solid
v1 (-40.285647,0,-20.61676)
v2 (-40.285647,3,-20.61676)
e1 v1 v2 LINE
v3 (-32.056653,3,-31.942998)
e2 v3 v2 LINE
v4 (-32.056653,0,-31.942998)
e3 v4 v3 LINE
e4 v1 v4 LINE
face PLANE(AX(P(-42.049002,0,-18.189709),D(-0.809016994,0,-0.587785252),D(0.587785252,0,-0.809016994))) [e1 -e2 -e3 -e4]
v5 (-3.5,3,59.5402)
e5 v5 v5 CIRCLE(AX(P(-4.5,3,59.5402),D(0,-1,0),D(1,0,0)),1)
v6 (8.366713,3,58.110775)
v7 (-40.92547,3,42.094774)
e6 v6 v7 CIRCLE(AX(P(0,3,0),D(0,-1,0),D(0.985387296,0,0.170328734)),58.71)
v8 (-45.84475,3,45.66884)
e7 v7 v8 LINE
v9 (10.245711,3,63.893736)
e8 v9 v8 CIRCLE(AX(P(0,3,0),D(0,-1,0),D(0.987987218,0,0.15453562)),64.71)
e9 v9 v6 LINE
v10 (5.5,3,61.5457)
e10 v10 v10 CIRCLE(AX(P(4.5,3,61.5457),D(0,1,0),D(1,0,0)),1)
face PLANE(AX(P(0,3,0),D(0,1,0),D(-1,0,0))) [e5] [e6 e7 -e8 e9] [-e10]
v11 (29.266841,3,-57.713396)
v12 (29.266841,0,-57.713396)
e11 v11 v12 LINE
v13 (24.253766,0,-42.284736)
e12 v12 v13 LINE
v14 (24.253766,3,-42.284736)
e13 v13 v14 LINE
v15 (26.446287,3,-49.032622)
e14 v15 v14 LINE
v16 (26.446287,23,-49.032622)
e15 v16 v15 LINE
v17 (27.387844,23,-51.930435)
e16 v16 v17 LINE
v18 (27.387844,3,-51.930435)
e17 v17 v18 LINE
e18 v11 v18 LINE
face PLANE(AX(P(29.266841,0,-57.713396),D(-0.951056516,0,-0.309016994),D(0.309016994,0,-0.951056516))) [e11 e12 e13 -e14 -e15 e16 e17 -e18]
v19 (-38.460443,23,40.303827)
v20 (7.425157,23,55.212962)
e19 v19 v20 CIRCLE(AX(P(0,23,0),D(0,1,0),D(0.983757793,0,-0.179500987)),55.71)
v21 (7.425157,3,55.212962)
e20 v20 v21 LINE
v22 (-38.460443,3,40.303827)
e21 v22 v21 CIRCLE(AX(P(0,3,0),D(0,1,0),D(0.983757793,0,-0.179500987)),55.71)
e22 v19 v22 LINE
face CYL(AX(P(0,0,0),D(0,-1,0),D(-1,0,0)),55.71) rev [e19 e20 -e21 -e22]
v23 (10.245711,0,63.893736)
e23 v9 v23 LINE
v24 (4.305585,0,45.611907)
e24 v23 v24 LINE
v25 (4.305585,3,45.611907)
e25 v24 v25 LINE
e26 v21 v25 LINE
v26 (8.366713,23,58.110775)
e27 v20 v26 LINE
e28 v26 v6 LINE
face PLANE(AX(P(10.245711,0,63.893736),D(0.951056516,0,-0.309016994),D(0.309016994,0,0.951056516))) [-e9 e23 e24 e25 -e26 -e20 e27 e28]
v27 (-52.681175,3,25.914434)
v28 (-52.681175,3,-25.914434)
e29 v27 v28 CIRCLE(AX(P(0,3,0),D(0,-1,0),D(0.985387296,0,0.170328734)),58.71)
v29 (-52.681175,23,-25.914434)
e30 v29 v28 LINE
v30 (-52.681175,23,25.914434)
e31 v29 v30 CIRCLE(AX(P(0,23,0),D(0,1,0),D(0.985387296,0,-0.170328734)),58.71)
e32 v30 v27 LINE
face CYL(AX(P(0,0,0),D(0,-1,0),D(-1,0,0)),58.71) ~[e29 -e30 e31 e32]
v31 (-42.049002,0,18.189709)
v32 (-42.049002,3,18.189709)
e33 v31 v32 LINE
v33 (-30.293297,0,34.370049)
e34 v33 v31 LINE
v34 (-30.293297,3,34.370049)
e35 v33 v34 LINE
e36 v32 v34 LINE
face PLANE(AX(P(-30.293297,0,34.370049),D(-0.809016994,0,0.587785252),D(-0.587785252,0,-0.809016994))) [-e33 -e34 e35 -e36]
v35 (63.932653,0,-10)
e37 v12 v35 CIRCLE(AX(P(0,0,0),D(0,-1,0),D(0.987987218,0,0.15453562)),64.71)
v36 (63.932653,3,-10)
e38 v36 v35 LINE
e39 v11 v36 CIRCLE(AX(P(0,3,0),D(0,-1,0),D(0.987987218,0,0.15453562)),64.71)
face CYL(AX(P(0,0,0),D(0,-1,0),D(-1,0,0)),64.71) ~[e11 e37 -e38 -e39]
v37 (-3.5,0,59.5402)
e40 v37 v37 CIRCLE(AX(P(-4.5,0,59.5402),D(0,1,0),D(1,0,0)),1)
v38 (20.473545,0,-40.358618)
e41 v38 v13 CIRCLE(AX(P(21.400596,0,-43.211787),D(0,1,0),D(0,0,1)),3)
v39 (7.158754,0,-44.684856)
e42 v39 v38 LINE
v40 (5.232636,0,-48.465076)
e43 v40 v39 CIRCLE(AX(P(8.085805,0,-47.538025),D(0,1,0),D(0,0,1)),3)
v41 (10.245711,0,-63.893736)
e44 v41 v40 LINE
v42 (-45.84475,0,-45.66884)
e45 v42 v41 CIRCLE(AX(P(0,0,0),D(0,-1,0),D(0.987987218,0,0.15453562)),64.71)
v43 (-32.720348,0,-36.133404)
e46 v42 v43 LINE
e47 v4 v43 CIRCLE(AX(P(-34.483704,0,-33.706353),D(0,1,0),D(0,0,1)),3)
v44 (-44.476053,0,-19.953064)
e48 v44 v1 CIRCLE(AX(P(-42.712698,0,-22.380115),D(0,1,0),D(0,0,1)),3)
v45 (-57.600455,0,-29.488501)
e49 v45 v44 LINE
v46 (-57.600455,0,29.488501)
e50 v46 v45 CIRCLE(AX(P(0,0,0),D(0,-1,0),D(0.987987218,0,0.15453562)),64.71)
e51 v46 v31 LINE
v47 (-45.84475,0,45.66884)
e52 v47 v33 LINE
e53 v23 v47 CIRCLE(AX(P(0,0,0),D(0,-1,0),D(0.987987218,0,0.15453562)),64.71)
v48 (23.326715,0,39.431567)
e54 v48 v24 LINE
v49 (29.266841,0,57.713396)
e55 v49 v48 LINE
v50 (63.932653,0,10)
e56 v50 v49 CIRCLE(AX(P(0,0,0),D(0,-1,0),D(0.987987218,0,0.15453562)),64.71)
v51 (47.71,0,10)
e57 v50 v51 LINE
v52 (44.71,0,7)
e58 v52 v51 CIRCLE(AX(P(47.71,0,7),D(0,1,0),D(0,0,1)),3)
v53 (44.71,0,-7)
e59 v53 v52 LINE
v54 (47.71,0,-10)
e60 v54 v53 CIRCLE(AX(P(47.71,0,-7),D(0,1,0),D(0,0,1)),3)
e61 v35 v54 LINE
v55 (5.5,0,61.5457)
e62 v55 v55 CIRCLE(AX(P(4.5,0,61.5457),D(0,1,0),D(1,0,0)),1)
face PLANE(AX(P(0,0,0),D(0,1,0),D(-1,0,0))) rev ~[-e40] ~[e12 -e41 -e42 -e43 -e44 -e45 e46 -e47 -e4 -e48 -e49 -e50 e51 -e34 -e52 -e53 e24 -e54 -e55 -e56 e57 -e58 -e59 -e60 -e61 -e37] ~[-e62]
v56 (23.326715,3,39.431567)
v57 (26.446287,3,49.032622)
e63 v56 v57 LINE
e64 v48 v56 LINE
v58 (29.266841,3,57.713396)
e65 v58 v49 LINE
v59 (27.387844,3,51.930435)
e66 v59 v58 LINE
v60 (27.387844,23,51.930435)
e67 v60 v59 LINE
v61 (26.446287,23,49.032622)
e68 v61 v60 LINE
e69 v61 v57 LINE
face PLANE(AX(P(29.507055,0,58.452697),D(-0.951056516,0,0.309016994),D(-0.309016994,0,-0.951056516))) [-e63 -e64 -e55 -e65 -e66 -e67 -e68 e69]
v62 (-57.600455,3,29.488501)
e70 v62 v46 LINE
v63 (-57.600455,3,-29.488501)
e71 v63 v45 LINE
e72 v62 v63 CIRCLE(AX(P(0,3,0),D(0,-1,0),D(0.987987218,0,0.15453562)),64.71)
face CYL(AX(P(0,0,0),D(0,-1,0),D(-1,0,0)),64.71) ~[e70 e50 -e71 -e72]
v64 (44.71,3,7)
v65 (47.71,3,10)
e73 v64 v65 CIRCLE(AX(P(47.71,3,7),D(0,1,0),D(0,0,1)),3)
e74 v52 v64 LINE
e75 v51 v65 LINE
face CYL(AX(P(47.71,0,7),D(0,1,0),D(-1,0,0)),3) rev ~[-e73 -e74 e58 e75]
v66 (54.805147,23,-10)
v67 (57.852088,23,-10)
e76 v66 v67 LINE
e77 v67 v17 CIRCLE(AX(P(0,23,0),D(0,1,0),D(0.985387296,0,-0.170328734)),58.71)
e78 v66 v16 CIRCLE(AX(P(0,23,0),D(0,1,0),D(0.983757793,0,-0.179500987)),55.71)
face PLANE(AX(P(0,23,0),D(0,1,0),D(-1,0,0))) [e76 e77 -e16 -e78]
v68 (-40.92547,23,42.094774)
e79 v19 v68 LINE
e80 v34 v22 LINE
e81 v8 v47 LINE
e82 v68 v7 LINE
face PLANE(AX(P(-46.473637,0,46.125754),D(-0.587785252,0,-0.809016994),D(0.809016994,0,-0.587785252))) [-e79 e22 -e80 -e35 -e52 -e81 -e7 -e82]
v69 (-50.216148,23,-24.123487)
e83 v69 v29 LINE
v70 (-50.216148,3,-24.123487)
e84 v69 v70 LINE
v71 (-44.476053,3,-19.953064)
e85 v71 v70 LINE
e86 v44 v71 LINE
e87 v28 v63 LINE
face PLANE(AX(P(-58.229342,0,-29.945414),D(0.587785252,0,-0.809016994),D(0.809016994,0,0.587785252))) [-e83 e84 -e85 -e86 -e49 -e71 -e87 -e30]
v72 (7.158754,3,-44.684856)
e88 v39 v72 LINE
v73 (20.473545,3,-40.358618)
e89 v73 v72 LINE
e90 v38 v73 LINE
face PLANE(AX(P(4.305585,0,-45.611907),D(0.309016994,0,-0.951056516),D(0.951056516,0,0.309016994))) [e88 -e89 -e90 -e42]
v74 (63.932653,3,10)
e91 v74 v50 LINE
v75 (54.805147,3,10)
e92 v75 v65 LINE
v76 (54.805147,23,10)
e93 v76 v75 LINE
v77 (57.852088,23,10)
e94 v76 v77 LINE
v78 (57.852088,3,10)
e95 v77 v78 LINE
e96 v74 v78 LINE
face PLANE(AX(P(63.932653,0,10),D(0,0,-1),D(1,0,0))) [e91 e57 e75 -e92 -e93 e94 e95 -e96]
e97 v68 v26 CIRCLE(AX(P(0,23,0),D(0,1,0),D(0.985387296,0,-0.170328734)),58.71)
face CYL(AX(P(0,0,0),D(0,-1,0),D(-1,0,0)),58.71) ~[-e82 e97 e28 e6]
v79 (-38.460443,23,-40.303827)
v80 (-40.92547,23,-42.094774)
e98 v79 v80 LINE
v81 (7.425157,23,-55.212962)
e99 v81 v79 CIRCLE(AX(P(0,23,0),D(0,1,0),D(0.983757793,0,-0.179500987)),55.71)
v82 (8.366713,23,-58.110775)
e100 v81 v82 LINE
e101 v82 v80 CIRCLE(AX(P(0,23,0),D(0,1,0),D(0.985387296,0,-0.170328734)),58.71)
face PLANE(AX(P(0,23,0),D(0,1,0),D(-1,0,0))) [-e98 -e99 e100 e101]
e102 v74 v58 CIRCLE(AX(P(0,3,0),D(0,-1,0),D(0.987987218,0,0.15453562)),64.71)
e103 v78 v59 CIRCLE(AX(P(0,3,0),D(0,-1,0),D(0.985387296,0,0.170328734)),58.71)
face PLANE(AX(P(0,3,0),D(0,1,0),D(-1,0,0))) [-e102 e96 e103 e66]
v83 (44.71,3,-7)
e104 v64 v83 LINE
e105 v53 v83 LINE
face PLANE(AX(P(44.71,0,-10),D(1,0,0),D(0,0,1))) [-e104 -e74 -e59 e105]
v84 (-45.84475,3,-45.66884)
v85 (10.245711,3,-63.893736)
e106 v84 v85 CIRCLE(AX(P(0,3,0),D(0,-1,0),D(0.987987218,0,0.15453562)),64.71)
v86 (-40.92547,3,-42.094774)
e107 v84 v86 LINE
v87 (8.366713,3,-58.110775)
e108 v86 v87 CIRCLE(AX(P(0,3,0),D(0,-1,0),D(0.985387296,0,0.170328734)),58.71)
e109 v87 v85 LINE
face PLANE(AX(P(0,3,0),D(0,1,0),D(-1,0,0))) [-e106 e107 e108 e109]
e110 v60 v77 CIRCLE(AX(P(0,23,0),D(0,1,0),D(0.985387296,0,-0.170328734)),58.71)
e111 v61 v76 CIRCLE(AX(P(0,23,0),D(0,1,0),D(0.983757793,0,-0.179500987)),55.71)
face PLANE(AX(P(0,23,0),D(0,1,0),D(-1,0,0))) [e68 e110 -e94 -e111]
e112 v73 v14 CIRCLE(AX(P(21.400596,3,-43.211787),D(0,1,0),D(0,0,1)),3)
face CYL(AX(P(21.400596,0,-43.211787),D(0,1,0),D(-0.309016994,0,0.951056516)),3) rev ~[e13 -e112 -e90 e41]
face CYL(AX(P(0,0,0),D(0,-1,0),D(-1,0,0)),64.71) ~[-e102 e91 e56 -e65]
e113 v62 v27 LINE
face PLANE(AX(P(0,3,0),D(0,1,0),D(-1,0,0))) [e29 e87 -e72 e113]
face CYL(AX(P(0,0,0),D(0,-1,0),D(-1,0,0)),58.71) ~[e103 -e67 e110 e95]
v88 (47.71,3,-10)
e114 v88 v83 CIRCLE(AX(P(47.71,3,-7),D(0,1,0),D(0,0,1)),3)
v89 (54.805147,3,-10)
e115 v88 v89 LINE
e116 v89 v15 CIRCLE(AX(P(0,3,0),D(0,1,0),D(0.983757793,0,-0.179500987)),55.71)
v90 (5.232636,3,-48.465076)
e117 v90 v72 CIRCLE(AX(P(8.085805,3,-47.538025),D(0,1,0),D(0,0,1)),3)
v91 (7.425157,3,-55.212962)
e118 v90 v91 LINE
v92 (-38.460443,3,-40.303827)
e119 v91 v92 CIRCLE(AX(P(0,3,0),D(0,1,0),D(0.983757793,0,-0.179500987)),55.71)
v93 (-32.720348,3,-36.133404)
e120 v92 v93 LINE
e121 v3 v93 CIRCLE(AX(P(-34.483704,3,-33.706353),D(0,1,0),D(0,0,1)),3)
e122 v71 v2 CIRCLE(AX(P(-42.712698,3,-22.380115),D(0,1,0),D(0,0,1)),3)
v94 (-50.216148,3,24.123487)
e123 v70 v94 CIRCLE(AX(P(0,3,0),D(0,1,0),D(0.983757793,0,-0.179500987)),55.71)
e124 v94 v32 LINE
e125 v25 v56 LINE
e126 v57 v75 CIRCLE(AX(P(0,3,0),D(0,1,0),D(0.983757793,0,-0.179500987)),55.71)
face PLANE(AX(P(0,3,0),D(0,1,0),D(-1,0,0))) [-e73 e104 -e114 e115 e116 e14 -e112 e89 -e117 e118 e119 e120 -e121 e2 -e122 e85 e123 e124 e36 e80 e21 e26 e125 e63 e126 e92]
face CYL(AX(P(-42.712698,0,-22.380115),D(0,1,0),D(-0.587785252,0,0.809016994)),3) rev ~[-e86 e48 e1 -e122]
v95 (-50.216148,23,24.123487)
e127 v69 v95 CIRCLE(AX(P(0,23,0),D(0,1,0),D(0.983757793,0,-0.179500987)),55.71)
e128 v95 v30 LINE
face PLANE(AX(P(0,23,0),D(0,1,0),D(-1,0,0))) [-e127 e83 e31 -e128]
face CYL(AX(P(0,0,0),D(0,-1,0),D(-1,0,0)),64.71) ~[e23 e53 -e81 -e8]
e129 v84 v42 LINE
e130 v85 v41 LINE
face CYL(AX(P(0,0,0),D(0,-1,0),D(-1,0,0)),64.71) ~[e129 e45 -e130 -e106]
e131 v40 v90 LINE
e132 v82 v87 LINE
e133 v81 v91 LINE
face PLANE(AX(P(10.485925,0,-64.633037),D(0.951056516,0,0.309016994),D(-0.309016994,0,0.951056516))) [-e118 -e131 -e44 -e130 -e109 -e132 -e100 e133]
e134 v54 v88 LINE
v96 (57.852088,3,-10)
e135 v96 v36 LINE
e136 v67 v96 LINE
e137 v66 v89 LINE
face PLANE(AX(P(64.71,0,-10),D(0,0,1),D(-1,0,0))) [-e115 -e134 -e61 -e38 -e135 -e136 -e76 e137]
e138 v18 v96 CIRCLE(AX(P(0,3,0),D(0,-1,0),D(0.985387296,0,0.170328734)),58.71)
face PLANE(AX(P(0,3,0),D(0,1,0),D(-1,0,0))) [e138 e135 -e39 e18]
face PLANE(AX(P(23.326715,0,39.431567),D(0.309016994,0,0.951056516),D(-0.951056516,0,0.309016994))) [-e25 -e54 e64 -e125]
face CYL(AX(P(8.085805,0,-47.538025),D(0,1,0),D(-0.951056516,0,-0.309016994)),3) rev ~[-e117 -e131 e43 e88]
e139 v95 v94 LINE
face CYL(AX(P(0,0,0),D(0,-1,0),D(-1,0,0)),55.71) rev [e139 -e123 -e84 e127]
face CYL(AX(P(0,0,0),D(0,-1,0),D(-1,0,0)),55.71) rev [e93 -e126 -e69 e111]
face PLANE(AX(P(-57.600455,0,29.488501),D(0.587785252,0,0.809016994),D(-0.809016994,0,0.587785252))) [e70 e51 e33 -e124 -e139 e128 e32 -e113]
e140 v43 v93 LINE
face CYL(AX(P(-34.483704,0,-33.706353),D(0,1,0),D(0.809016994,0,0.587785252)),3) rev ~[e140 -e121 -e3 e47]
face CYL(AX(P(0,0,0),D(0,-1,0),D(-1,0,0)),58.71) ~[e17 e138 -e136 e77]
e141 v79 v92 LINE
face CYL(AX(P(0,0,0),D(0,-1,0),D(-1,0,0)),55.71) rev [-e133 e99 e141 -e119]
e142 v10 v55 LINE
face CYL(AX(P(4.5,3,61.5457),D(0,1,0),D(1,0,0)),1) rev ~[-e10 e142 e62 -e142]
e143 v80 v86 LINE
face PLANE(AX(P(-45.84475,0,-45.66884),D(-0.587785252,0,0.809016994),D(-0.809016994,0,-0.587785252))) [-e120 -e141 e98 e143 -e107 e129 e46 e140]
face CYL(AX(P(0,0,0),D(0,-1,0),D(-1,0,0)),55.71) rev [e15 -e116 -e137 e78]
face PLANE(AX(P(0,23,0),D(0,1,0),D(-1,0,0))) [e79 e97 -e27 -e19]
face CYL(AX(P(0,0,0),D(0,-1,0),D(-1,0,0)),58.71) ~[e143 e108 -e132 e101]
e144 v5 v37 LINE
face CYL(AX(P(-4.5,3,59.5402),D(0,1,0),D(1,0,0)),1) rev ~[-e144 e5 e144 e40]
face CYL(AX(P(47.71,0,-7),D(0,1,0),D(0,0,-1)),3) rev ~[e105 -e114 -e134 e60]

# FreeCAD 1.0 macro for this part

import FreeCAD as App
import Part
import Sketcher

V = App.Vector
Q = App.Units.Quantity


def edges_at(feature, points):
    """Names of the edges that pass closest to the given points."""
    edges = feature.Shape.Edges
    near = lambda p: min(range(len(edges)), key=lambda i: edges[i].distToShape(Part.Vertex(*p))[0])
    return sorted({f"Edge{near(p) + 1}" for p in points})


def add_polygon(sketch, points):
    """Adds a closed chain of lines whose ends are joined by coincident constraints."""
    first, n = sketch.GeometryCount, len(points)
    for a, b in zip(points, points[1:] + points[:1]):
        sketch.addGeometry(Part.LineSegment(App.Vector(*a, 0), App.Vector(*b, 0)), False)
    for i in range(n):
        sketch.addConstraint(Sketcher.Constraint("Coincident", first + i, 2, first + (i + 1) % n, 1))

doc = App.newDocument("Part")
body = doc.addObject("PartDesign::Body", "Body")

# Sketch on XZ plane
sketch1 = body.newObject("Sketcher::SketchObject", "Sketch")
sketch1.AttachmentSupport = (doc.getObject("XZ_Plane"), [""])
sketch1.MapMode = "FlatFace"
sketch1.addGeometry(Part.Circle(V(0, 0, 0), V(0, 0, 1), 59), False)
sketch1.addGeometry(Part.Circle(V(0, 0, 0), V(0, 0, 1), 56), False)
sketch1.addConstraint(Sketcher.Constraint("Coincident", 0, 3, -1, 1))
sketch1.addConstraint(Sketcher.Constraint("Coincident", 1, 3, -1, 1))
sketch1.addConstraint(Sketcher.Constraint("Diameter", 0, Q("117.42 mm")))
sketch1.addConstraint(Sketcher.Constraint("Diameter", 1, Q("111.42 mm")))
pad1 = body.newObject("PartDesign::Pad", "Pad")
pad1.Profile = sketch1
pad1.Length = 23
pad1.Reversed = True

# Sketch on XZ plane
sketch2 = body.newObject("Sketcher::SketchObject", "Sketch001")
sketch2.AttachmentSupport = (doc.getObject("XZ_Plane"), [""])
sketch2.MapMode = "FlatFace"
sketch2.addGeometry(Part.Circle(V(0, 0, 0), V(0, 0, 1), 65), False)
sketch2.addGeometry(Part.Circle(V(0, 0, 0), V(0, 0, 1), 59), False)
sketch2.addConstraint(Sketcher.Constraint("Coincident", 0, 3, -1, 1))
sketch2.addConstraint(Sketcher.Constraint("Coincident", 1, 3, -1, 1))
sketch2.addConstraint(Sketcher.Constraint("Diameter", 1, Q("117.42 mm")))
sketch2.addConstraint(Sketcher.Constraint("Diameter", 0, Q("129.42 mm")))
pad2 = body.newObject("PartDesign::Pad", "Pad001")
pad2.Profile = sketch2
pad2.Length = 3
pad2.Reversed = True

# Sketch on XZ plane
sketch3 = body.newObject("Sketcher::SketchObject", "Sketch002")
sketch3.AttachmentSupport = (doc.getObject("XZ_Plane"), [""])
sketch3.MapMode = "FlatFace"
sketch3.AttachmentOffset = App.Placement(V(0, 0, -3), App.Rotation())
sketch3.addGeometry(Part.Circle(V(-4.5, 59.5, 0), V(0, 0, 1), 1), False)
sketch3.addGeometry(Part.Circle(V(4.5, 61.5, 0), V(0, 0, 1), 1), False)
sketch3.addConstraint(Sketcher.Constraint("Equal", 0, 1))
sketch3.addConstraint(Sketcher.Constraint("Diameter", 0, Q("2 mm")))
sketch3.addConstraint(Sketcher.Constraint("DistanceX", 0, 3, -1, 1, Q("4.5 mm")))
sketch3.addConstraint(Sketcher.Constraint("DistanceX", -1, 1, 1, 3, Q("4.5 mm")))
sketch3.addConstraint(Sketcher.Constraint("DistanceY", -1, 1, 0, 3, Q("59.5402 mm")))
sketch3.addConstraint(Sketcher.Constraint("DistanceY", -1, 1, 1, 3, Q("61.5457 mm")))
pocket1 = body.newObject("PartDesign::Pocket", "Pocket")
pocket1.Profile = sketch3
pocket1.Length = 3
pocket1.Reversed = True

# Sketch on XZ plane
sketch4 = body.newObject("Sketcher::SketchObject", "Sketch003")
sketch4.AttachmentSupport = (doc.getObject("XZ_Plane"), [""])
sketch4.MapMode = "FlatFace"
sketch4.addGeometry(Part.Circle(V(0, 0, 0), V(0, 0, 1), 56), False)
sketch4.addConstraint(Sketcher.Constraint("Coincident", 0, 3, -1, 1))
sketch4.addConstraint(Sketcher.Constraint("Diameter", 0, Q("111.42 mm")))
pad3 = body.newObject("PartDesign::Pad", "Pad002")
pad3.Profile = sketch4
pad3.Length = 3
pad3.Reversed = True

# Sketch on XZ plane
sketch5 = body.newObject("Sketcher::SketchObject", "Sketch004")
sketch5.AttachmentSupport = (doc.getObject("XZ_Plane"), [""])
sketch5.MapMode = "FlatFace"
add_polygon(sketch5, [(65, -10), (65, 10), (45, 10), (45, -10)])  # lines 0-3
sketch5.addConstraint(Sketcher.Constraint("Vertical", 0))
sketch5.addConstraint(Sketcher.Constraint("Horizontal", 1))
sketch5.addConstraint(Sketcher.Constraint("Vertical", 2))
sketch5.addConstraint(Sketcher.Constraint("Horizontal", 3))
sketch5.addConstraint(Sketcher.Constraint("Equal", 3, 0))
sketch5.addConstraint(Sketcher.Constraint("DistanceX", 1, 2, 1, 1, Q("20 mm")))
sketch5.addConstraint(Sketcher.Constraint("DistanceY", -1, 1, 0, 2, Q("10 mm")))
sketch5.addConstraint(Sketcher.Constraint("DistanceX", -1, 1, 0, 2, Q("64.71 mm")))
pocket2 = body.newObject("PartDesign::Pocket", "Pocket001")
pocket2.Profile = sketch5
pocket2.Length = 23
doc.recompute()

polarpattern = body.newObject("PartDesign::PolarPattern", "PolarPattern")
polarpattern.Originals = [pocket2]
polarpattern.Axis = (doc.getObject("Y_Axis"), [""])
polarpattern.Angle = 360
polarpattern.Occurrences = 5
body.Tip = polarpattern
doc.recompute()

fillet = body.newObject("PartDesign::Fillet", "Fillet")
fillet.Base = (polarpattern, edges_at(polarpattern, [
    (44.71, 1.5, 10),
    (44.71, 1.5, -10),
    (-42.049, 1.5, -18.19),
    (-30.293, 1.5, -34.37),
    (23.327, 1.5, -39.432),
    (4.306, 1.5, -45.612),
]))
fillet.Radius = 3

doc.recompute()
